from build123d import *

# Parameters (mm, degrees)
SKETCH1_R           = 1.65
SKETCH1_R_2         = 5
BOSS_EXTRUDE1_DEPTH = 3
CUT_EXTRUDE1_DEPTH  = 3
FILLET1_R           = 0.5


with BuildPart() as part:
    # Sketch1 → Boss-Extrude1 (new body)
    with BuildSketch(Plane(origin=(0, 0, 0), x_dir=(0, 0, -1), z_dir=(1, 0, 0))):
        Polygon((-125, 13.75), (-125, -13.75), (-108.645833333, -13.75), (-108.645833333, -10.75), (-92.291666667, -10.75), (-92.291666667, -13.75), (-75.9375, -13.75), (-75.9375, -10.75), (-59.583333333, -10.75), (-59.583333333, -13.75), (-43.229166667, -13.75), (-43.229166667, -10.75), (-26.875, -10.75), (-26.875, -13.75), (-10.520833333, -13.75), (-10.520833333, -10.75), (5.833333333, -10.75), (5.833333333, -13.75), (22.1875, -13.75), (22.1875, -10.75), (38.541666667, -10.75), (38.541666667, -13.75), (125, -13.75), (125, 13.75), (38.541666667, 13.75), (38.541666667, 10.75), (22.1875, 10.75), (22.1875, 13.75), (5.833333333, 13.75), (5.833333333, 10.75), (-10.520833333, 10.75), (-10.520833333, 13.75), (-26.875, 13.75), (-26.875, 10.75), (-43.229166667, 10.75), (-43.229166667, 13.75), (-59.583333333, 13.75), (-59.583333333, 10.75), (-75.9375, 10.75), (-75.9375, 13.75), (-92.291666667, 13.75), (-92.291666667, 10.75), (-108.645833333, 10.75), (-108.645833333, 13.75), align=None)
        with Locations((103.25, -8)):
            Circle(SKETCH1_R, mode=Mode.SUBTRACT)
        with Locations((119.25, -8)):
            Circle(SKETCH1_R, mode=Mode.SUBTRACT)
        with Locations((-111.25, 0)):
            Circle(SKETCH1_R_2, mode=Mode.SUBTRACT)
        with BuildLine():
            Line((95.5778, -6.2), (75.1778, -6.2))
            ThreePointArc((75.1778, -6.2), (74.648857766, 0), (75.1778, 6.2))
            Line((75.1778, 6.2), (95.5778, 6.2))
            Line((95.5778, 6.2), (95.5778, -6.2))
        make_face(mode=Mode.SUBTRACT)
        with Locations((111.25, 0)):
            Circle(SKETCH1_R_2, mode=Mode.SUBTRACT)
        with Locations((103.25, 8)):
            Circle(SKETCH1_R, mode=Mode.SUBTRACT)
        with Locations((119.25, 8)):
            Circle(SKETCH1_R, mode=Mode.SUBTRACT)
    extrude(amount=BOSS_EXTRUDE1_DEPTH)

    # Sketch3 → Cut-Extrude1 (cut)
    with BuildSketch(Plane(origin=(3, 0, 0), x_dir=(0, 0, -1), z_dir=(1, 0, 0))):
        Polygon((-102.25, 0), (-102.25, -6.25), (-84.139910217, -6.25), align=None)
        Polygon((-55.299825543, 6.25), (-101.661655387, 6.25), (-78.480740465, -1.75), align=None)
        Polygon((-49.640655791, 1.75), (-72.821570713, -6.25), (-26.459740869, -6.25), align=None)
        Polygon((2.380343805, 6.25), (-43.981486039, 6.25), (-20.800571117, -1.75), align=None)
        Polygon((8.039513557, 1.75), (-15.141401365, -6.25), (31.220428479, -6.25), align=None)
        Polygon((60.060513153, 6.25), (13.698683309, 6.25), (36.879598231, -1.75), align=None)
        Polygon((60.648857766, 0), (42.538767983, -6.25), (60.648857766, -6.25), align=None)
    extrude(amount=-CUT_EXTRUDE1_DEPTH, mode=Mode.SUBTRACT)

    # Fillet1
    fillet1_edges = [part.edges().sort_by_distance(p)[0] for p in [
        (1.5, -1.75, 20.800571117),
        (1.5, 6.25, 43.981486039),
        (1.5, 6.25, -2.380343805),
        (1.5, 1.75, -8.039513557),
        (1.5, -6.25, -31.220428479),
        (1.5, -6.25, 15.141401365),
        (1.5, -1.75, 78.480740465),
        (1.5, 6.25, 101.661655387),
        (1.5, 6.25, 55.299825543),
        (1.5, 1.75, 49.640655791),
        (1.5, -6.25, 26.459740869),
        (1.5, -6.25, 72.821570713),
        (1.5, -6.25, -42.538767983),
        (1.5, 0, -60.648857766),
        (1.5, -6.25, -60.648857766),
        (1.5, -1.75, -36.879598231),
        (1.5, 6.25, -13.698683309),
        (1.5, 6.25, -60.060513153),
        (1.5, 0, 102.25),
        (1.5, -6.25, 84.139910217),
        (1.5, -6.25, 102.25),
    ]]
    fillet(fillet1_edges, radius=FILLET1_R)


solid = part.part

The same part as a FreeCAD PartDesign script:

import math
import FreeCAD as App
import Part
import Sketcher


def edges_at(feature, points):
    """Names of the edges that pass closest to the given points."""
    edges = feature.Shape.Edges
    near = lambda p: min(range(len(edges)), key=lambda i: edges[i].distToShape(Part.Vertex(*p))[0])
    return sorted({f"Edge{near(p) + 1}" for p in points})

doc = App.newDocument("Part")
body = doc.addObject("PartDesign::Body", "Body")

sketch1 = body.newObject("Sketcher::SketchObject", "Sketch")
sketch1.AttachmentSupport = (doc.getObject("YZ_Plane"), [""])
sketch1.MapMode = "FlatFace"
sketch1.addGeometry([
    Part.LineSegment(App.Vector(13.75, 125, 0), App.Vector(-13.75, 125, 0)),
    Part.LineSegment(App.Vector(-13.75, 125, 0), App.Vector(-13.75, 108.645833, 0)),
    Part.LineSegment(App.Vector(-13.75, 108.645833, 0), App.Vector(-10.75, 108.645833, 0)),
    Part.LineSegment(App.Vector(-10.75, 108.645833, 0), App.Vector(-10.75, 92.291667, 0)),
    Part.LineSegment(App.Vector(-10.75, 92.291667, 0), App.Vector(-13.75, 92.291667, 0)),
    Part.LineSegment(App.Vector(-13.75, 92.291667, 0), App.Vector(-13.75, 75.9375, 0)),
    Part.LineSegment(App.Vector(-13.75, 75.9375, 0), App.Vector(-10.75, 75.9375, 0)),
    Part.LineSegment(App.Vector(-10.75, 75.9375, 0), App.Vector(-10.75, 59.583333, 0)),
    Part.LineSegment(App.Vector(-10.75, 59.583333, 0), App.Vector(-13.75, 59.583333, 0)),
    Part.LineSegment(App.Vector(-13.75, 59.583333, 0), App.Vector(-13.75, 43.229167, 0)),
    Part.LineSegment(App.Vector(-13.75, 43.229167, 0), App.Vector(-10.75, 43.229167, 0)),
    Part.LineSegment(App.Vector(-10.75, 43.229167, 0), App.Vector(-10.75, 26.875, 0)),
    Part.LineSegment(App.Vector(-10.75, 26.875, 0), App.Vector(-13.75, 26.875, 0)),
    Part.LineSegment(App.Vector(-13.75, 26.875, 0), App.Vector(-13.75, 10.520833, 0)),
    Part.LineSegment(App.Vector(-13.75, 10.520833, 0), App.Vector(-10.75, 10.520833, 0)),
    Part.LineSegment(App.Vector(-10.75, 10.520833, 0), App.Vector(-10.75, -5.833333, 0)),
    Part.LineSegment(App.Vector(-10.75, -5.833333, 0), App.Vector(-13.75, -5.833333, 0)),
    Part.LineSegment(App.Vector(-13.75, -5.833333, 0), App.Vector(-13.75, -22.1875, 0)),
    Part.LineSegment(App.Vector(-13.75, -22.1875, 0), App.Vector(-10.75, -22.1875, 0)),
    Part.LineSegment(App.Vector(-10.75, -22.1875, 0), App.Vector(-10.75, -38.541667, 0)),
    Part.LineSegment(App.Vector(-10.75, -38.541667, 0), App.Vector(-13.75, -38.541667, 0)),
    Part.LineSegment(App.Vector(-13.75, -38.541667, 0), App.Vector(-13.75, -125, 0)),
    Part.LineSegment(App.Vector(-13.75, -125, 0), App.Vector(13.75, -125, 0)),
    Part.LineSegment(App.Vector(13.75, -125, 0), App.Vector(13.75, -38.541667, 0)),
    Part.LineSegment(App.Vector(13.75, -38.541667, 0), App.Vector(10.75, -38.541667, 0)),
    Part.LineSegment(App.Vector(10.75, -38.541667, 0), App.Vector(10.75, -22.1875, 0)),
    Part.LineSegment(App.Vector(10.75, -22.1875, 0), App.Vector(13.75, -22.1875, 0)),
    Part.LineSegment(App.Vector(13.75, -22.1875, 0), App.Vector(13.75, -5.833333, 0)),
    Part.LineSegment(App.Vector(13.75, -5.833333, 0), App.Vector(10.75, -5.833333, 0)),
    Part.LineSegment(App.Vector(10.75, -5.833333, 0), App.Vector(10.75, 10.520833, 0)),
    Part.LineSegment(App.Vector(10.75, 10.520833, 0), App.Vector(13.75, 10.520833, 0)),
    Part.LineSegment(App.Vector(13.75, 10.520833, 0), App.Vector(13.75, 26.875, 0)),
    Part.LineSegment(App.Vector(13.75, 26.875, 0), App.Vector(10.75, 26.875, 0)),
    Part.LineSegment(App.Vector(10.75, 26.875, 0), App.Vector(10.75, 43.229167, 0)),
    Part.LineSegment(App.Vector(10.75, 43.229167, 0), App.Vector(13.75, 43.229167, 0)),
    Part.LineSegment(App.Vector(13.75, 43.229167, 0), App.Vector(13.75, 59.583333, 0)),
    Part.LineSegment(App.Vector(13.75, 59.583333, 0), App.Vector(10.75, 59.583333, 0)),
    Part.LineSegment(App.Vector(10.75, 59.583333, 0), App.Vector(10.75, 75.9375, 0)),
    Part.LineSegment(App.Vector(10.75, 75.9375, 0), App.Vector(13.75, 75.9375, 0)),
    Part.LineSegment(App.Vector(13.75, 75.9375, 0), App.Vector(13.75, 92.291667, 0)),
    Part.LineSegment(App.Vector(13.75, 92.291667, 0), App.Vector(10.75, 92.291667, 0)),
    Part.LineSegment(App.Vector(10.75, 92.291667, 0), App.Vector(10.75, 108.645833, 0)),
    Part.LineSegment(App.Vector(10.75, 108.645833, 0), App.Vector(13.75, 108.645833, 0)),
    Part.LineSegment(App.Vector(13.75, 108.645833, 0), App.Vector(13.75, 125, 0)),
    Part.Circle(App.Vector(-8, -103.25, 0), App.Vector(0, 0, 1), 1.65),
    Part.Circle(App.Vector(-8, -119.25, 0), App.Vector(0, 0, 1), 1.65),
    Part.Circle(App.Vector(0, 111.25, 0), App.Vector(0, 0, 1), 5),
    Part.LineSegment(App.Vector(6.2, -95.5778, 0), App.Vector(-6.2, -95.5778, 0)),
    Part.LineSegment(App.Vector(-6.2, -95.5778, 0), App.Vector(-6.2, -75.1778, 0)),
    Part.ArcOfCircle(Part.Circle(App.Vector(0, -111.25, 0), App.Vector(0, 0, 1), 36.601142), math.radians(80.247435), math.radians(99.752565)),
    Part.LineSegment(App.Vector(6.2, -75.1778, 0), App.Vector(6.2, -95.5778, 0)),
    Part.Circle(App.Vector(0, -111.25, 0), App.Vector(0, 0, 1), 5),
    Part.Circle(App.Vector(8, -103.25, 0), App.Vector(0, 0, 1), 1.65),
    Part.Circle(App.Vector(8, -119.25, 0), App.Vector(0, 0, 1), 1.65),
], False)
sketch1.addConstraint([
    Sketcher.Constraint("Coincident", 0, 2, 1, 1),
    Sketcher.Constraint("Coincident", 1, 2, 2, 1),
    Sketcher.Constraint("Coincident", 2, 2, 3, 1),
    Sketcher.Constraint("Coincident", 3, 2, 4, 1),
    Sketcher.Constraint("Coincident", 4, 2, 5, 1),
    Sketcher.Constraint("Coincident", 5, 2, 6, 1),
    Sketcher.Constraint("Coincident", 6, 2, 7, 1),
    Sketcher.Constraint("Coincident", 7, 2, 8, 1),
    Sketcher.Constraint("Coincident", 8, 2, 9, 1),
    Sketcher.Constraint("Coincident", 9, 2, 10, 1),
    Sketcher.Constraint("Coincident", 10, 2, 11, 1),
    Sketcher.Constraint("Coincident", 11, 2, 12, 1),
    Sketcher.Constraint("Coincident", 12, 2, 13, 1),
    Sketcher.Constraint("Coincident", 13, 2, 14, 1),
    Sketcher.Constraint("Coincident", 14, 2, 15, 1),
    Sketcher.Constraint("Coincident", 15, 2, 16, 1),
    Sketcher.Constraint("Coincident", 16, 2, 17, 1),
    Sketcher.Constraint("Coincident", 17, 2, 18, 1),
    Sketcher.Constraint("Coincident", 18, 2, 19, 1),
    Sketcher.Constraint("Coincident", 19, 2, 20, 1),
    Sketcher.Constraint("Coincident", 20, 2, 21, 1),
    Sketcher.Constraint("Coincident", 21, 2, 22, 1),
    Sketcher.Constraint("Coincident", 22, 2, 23, 1),
    Sketcher.Constraint("Coincident", 23, 2, 24, 1),
    Sketcher.Constraint("Coincident", 24, 2, 25, 1),
    Sketcher.Constraint("Coincident", 25, 2, 26, 1),
    Sketcher.Constraint("Coincident", 26, 2, 27, 1),
    Sketcher.Constraint("Coincident", 27, 2, 28, 1),
    Sketcher.Constraint("Coincident", 28, 2, 29, 1),
    Sketcher.Constraint("Coincident", 29, 2, 30, 1),
    Sketcher.Constraint("Coincident", 30, 2, 31, 1),
    Sketcher.Constraint("Coincident", 31, 2, 32, 1),
    Sketcher.Constraint("Coincident", 32, 2, 33, 1),
    Sketcher.Constraint("Coincident", 33, 2, 34, 1),
    Sketcher.Constraint("Coincident", 34, 2, 35, 1),
    Sketcher.Constraint("Coincident", 35, 2, 36, 1),
    Sketcher.Constraint("Coincident", 36, 2, 37, 1),
    Sketcher.Constraint("Coincident", 37, 2, 38, 1),
    Sketcher.Constraint("Coincident", 38, 2, 39, 1),
    Sketcher.Constraint("Coincident", 39, 2, 40, 1),
    Sketcher.Constraint("Coincident", 40, 2, 41, 1),
    Sketcher.Constraint("Coincident", 41, 2, 42, 1),
    Sketcher.Constraint("Coincident", 42, 2, 43, 1),
    Sketcher.Constraint("Coincident", 43, 2, 0, 1),
    Sketcher.Constraint("Coincident", 47, 2, 48, 1),
    Sketcher.Constraint("Coincident", 48, 2, 49, 2),
    Sketcher.Constraint("Coincident", 49, 1, 50, 1),
    Sketcher.Constraint("Coincident", 50, 2, 47, 1),
    Sketcher.Constraint("Horizontal", 0),
    Sketcher.Constraint("Vertical", 1),
    Sketcher.Constraint("Horizontal", 2),
    Sketcher.Constraint("Vertical", 3),
    Sketcher.Constraint("Horizontal", 4),
    Sketcher.Constraint("Vertical", 5),
    Sketcher.Constraint("Horizontal", 6),
    Sketcher.Constraint("Vertical", 7),
    Sketcher.Constraint("Horizontal", 8),
    Sketcher.Constraint("Vertical", 9),
    Sketcher.Constraint("Horizontal", 10),
    Sketcher.Constraint("Vertical", 11),
    Sketcher.Constraint("Horizontal", 12),
    Sketcher.Constraint("Vertical", 13),
    Sketcher.Constraint("Horizontal", 14),
    Sketcher.Constraint("Vertical", 15),
    Sketcher.Constraint("Horizontal", 16),
    Sketcher.Constraint("Vertical", 17),
    Sketcher.Constraint("Horizontal", 18),
    Sketcher.Constraint("Vertical", 19),
    Sketcher.Constraint("Horizontal", 20),
    Sketcher.Constraint("Vertical", 21),
    Sketcher.Constraint("Horizontal", 22),
    Sketcher.Constraint("Vertical", 23),
    Sketcher.Constraint("Horizontal", 24),
    Sketcher.Constraint("Vertical", 25),
    Sketcher.Constraint("Horizontal", 26),
    Sketcher.Constraint("Vertical", 27),
    Sketcher.Constraint("Horizontal", 28),
    Sketcher.Constraint("Vertical", 29),
    Sketcher.Constraint("Horizontal", 30),
    Sketcher.Constraint("Vertical", 31),
    Sketcher.Constraint("Horizontal", 32),
    Sketcher.Constraint("Vertical", 33),
    Sketcher.Constraint("Horizontal", 34),
    Sketcher.Constraint("Vertical", 35),
    Sketcher.Constraint("Horizontal", 36),
    Sketcher.Constraint("Vertical", 37),
    Sketcher.Constraint("Horizontal", 38),
    Sketcher.Constraint("Vertical", 39),
    Sketcher.Constraint("Horizontal", 40),
    Sketcher.Constraint("Vertical", 41),
    Sketcher.Constraint("Horizontal", 42),
    Sketcher.Constraint("Vertical", 43),
    Sketcher.Constraint("Horizontal", 47),
    Sketcher.Constraint("Vertical", 48),
    Sketcher.Constraint("Vertical", 50),
    Sketcher.Constraint("Coincident", 51, 3, 49, 3),
    Sketcher.Constraint("Equal", 44, 45),
    Sketcher.Constraint("Equal", 46, 51),
    Sketcher.Constraint("Equal", 45, 52),
    Sketcher.Constraint("Equal", 52, 53),
    Sketcher.Constraint("Symmetric", 46, 3, 49, 3, -1, 1),
    Sketcher.Constraint("Symmetric", 0, 2, 22, 2, -1, 1),
    Sketcher.Constraint("Symmetric", 44, 3, 52, 3, -2),
    Sketcher.Constraint("Symmetric", 45, 3, 53, 3, -2),
    Sketcher.Constraint("Symmetric", 20, 2, 23, 2, -2),
    Sketcher.Constraint("Symmetric", 18, 2, 25, 2, -2),
    Sketcher.Constraint("Symmetric", 16, 2, 27, 2, -2),
    Sketcher.Constraint("Symmetric", 14, 2, 29, 2, -2),
    Sketcher.Constraint("Symmetric", 12, 2, 31, 2, -2),
    Sketcher.Constraint("Symmetric", 10, 2, 33, 2, -2),
    Sketcher.Constraint("Symmetric", 8, 2, 35, 2, -2),
    Sketcher.Constraint("Symmetric", 6, 2, 37, 2, -2),
    Sketcher.Constraint("Symmetric", 4, 2, 39, 2, -2),
    Sketcher.Constraint("Symmetric", 2, 2, 41, 2, -2),
    Sketcher.Constraint("Symmetric", 48, 2, 49, 1, -2),
    Sketcher.Constraint("Vertical", 44, 3, 45, 3),
    Sketcher.Constraint("Vertical", 1, 2, 4, 2),
    Sketcher.Constraint("Vertical", 3, 2, 6, 2),
    Sketcher.Constraint("Vertical", 5, 2, 8, 2),
    Sketcher.Constraint("Vertical", 7, 2, 10, 2),
    Sketcher.Constraint("Vertical", 9, 2, 12, 2),
    Sketcher.Constraint("Vertical", 11, 2, 14, 2),
    Sketcher.Constraint("Vertical", 13, 2, 16, 2),
    Sketcher.Constraint("Vertical", 15, 2, 18, 2),
    Sketcher.Constraint("Vertical", 39, 2, 42, 2),
    Sketcher.Constraint("Equal", 1, 3),
    Sketcher.Constraint("Equal", 3, 5),
    Sketcher.Constraint("Equal", 5, 7),
    Sketcher.Constraint("Equal", 7, 9),
    Sketcher.Constraint("Equal", 9, 11),
    Sketcher.Constraint("Equal", 11, 13),
    Sketcher.Constraint("Equal", 13, 15),
    Sketcher.Constraint("Equal", 15, 17),
    Sketcher.Constraint("Equal", 17, 19),
    Sketcher.Constraint("Diameter", 46, 10.0),
    Sketcher.Constraint("Diameter", 44, 3.3),
    Sketcher.Constraint("DistanceX", 2, 1, 2, 2, 3.0),
    Sketcher.Constraint("DistanceX", 0, 2, 0, 1, 27.5),
    Sketcher.Constraint("DistanceX", 47, 2, 47, 1, 12.4),
    Sketcher.Constraint("DistanceY", 48, 1, 48, 2, 20.4),
    Sketcher.Constraint("DistanceX", 44, 3, -1, 1, 8.0),
    Sketcher.Constraint("DistanceY", -1, 1, 0, 2, 125.0),
    Sketcher.Constraint("DistanceY", 45, 3, 44, 3, 16.0),
    Sketcher.Constraint("DistanceY", 45, 3, 49, 3, 8.0),
    Sketcher.Constraint("DistanceY", 44, 3, 46, 3, 214.5),
    Sketcher.Constraint("DistanceY", -1, 1, 11, 2, 26.875),
    Sketcher.Constraint("Radius", 49, 36.601142),
])
pad1 = body.newObject("PartDesign::Pad", "Pad")
pad1.Profile = sketch1
pad1.Length = 3

sketch2 = body.newObject("Sketcher::SketchObject", "Sketch001")
sketch2.AttachmentSupport = (doc.getObject("YZ_Plane"), [""])
sketch2.MapMode = "FlatFace"
sketch2.AttachmentOffset = App.Placement(App.Vector(0, 0, 3), App.Rotation())
sketch2.addGeometry([
    Part.LineSegment(App.Vector(0, 102.25, 0), App.Vector(-6.25, 102.25, 0)),
    Part.LineSegment(App.Vector(-6.25, 102.25, 0), App.Vector(-6.25, 84.13991, 0)),
    Part.LineSegment(App.Vector(-6.25, 84.13991, 0), App.Vector(0, 102.25, 0)),
    Part.LineSegment(App.Vector(6.25, 55.299826, 0), App.Vector(6.25, 101.661655, 0)),
    Part.LineSegment(App.Vector(6.25, 101.661655, 0), App.Vector(-1.75, 78.48074, 0)),
    Part.LineSegment(App.Vector(-1.75, 78.48074, 0), App.Vector(6.25, 55.299826, 0)),
    Part.LineSegment(App.Vector(1.75, 49.640656, 0), App.Vector(-6.25, 72.821571, 0)),
    Part.LineSegment(App.Vector(-6.25, 72.821571, 0), App.Vector(-6.25, 26.459741, 0)),
    Part.LineSegment(App.Vector(-6.25, 26.459741, 0), App.Vector(1.75, 49.640656, 0)),
    Part.LineSegment(App.Vector(6.25, -2.380344, 0), App.Vector(6.25, 43.981486, 0)),
    Part.LineSegment(App.Vector(6.25, 43.981486, 0), App.Vector(-1.75, 20.800571, 0)),
    Part.LineSegment(App.Vector(-1.75, 20.800571, 0), App.Vector(6.25, -2.380344, 0)),
    Part.LineSegment(App.Vector(1.75, -8.039514, 0), App.Vector(-6.25, 15.141401, 0)),
    Part.LineSegment(App.Vector(-6.25, 15.141401, 0), App.Vector(-6.25, -31.220428, 0)),
    Part.LineSegment(App.Vector(-6.25, -31.220428, 0), App.Vector(1.75, -8.039514, 0)),
    Part.LineSegment(App.Vector(6.25, -60.060513, 0), App.Vector(6.25, -13.698683, 0)),
    Part.LineSegment(App.Vector(6.25, -13.698683, 0), App.Vector(-1.75, -36.879598, 0)),
    Part.LineSegment(App.Vector(-1.75, -36.879598, 0), App.Vector(6.25, -60.060513, 0)),
    Part.LineSegment(App.Vector(0, -60.648858, 0), App.Vector(-6.25, -42.538768, 0)),
    Part.LineSegment(App.Vector(-6.25, -42.538768, 0), App.Vector(-6.25, -60.648858, 0)),
    Part.LineSegment(App.Vector(-6.25, -60.648858, 0), App.Vector(0, -60.648858, 0)),
], False)
sketch2.addConstraint([
    Sketcher.Constraint("Coincident", 0, 2, 1, 1),
    Sketcher.Constraint("Coincident", 1, 2, 2, 1),
    Sketcher.Constraint("Coincident", 2, 2, 0, 1),
    Sketcher.Constraint("Coincident", 3, 2, 4, 1),
    Sketcher.Constraint("Coincident", 4, 2, 5, 1),
    Sketcher.Constraint("Coincident", 5, 2, 3, 1),
    Sketcher.Constraint("Coincident", 6, 2, 7, 1),
    Sketcher.Constraint("Coincident", 7, 2, 8, 1),
    Sketcher.Constraint("Coincident", 8, 2, 6, 1),
    Sketcher.Constraint("Coincident", 9, 2, 10, 1),
    Sketcher.Constraint("Coincident", 10, 2, 11, 1),
    Sketcher.Constraint("Coincident", 11, 2, 9, 1),
    Sketcher.Constraint("Coincident", 12, 2, 13, 1),
    Sketcher.Constraint("Coincident", 13, 2, 14, 1),
    Sketcher.Constraint("Coincident", 14, 2, 12, 1),
    Sketcher.Constraint("Coincident", 15, 2, 16, 1),
    Sketcher.Constraint("Coincident", 16, 2, 17, 1),
    Sketcher.Constraint("Coincident", 17, 2, 15, 1),
    Sketcher.Constraint("Coincident", 18, 2, 19, 1),
    Sketcher.Constraint("Coincident", 19, 2, 20, 1),
    Sketcher.Constraint("Coincident", 20, 2, 18, 1),
    Sketcher.Constraint("Horizontal", 0),
    Sketcher.Constraint("Vertical", 1),
    Sketcher.Constraint("Vertical", 3),
    Sketcher.Constraint("Vertical", 7),
    Sketcher.Constraint("Vertical", 9),
    Sketcher.Constraint("Vertical", 13),
    Sketcher.Constraint("Vertical", 15),
    Sketcher.Constraint("Vertical", 19),
    Sketcher.Constraint("Horizontal", 20),
    Sketcher.Constraint("PointOnObject", 2, 2, -2),
    Sketcher.Constraint("PointOnObject", 20, 2, -2),
    Sketcher.Constraint("Parallel", 2, 4),
    Sketcher.Constraint("Parallel", 5, 6),
    Sketcher.Constraint("Parallel", 4, 8),
    Sketcher.Constraint("Parallel", 8, 10),
    Sketcher.Constraint("Parallel", 6, 11),
    Sketcher.Constraint("Parallel", 11, 12),
    Sketcher.Constraint("Parallel", 10, 14),
    Sketcher.Constraint("Parallel", 14, 16),
    Sketcher.Constraint("Parallel", 12, 17),
    Sketcher.Constraint("Parallel", 17, 18),
    Sketcher.Constraint("Vertical", 1, 2, 6, 2),
    Sketcher.Constraint("Vertical", 5, 2, 9, 2),
    Sketcher.Constraint("Vertical", 4, 2, 10, 2),
    Sketcher.Constraint("Vertical", 7, 2, 12, 2),
    Sketcher.Constraint("Vertical", 8, 2, 14, 2),
    Sketcher.Constraint("Vertical", 11, 2, 15, 2),
    Sketcher.Constraint("Vertical", 10, 2, 16, 2),
    Sketcher.Constraint("Vertical", 13, 2, 18, 2),
    Sketcher.Constraint("Equal", 3, 7),
    Sketcher.Constraint("Equal", 1, 19),
    Sketcher.Constraint("DistanceX", 4, 2, 3, 2, 8.0),
    Sketcher.Constraint("DistanceX", 0, 2, 0, 1, 6.25),
    Sketcher.Constraint("DistanceX", 0, 2, 3, 2, 12.5),
    Sketcher.Constraint("DistanceY", -1, 1, 0, 2, 102.25),
    Sketcher.Constraint("DistanceY", 7, 2, 4, 2, 52.021),
    Sketcher.Constraint("DistanceY", 10, 2, 6, 2, 52.021),
    Sketcher.Constraint("DistanceY", 13, 2, 10, 2, 52.021),
    Sketcher.Constraint("DistanceY", 16, 2, 12, 2, 52.021),
    Sketcher.Constraint("DistanceY", 1, 2, 1, 1, 18.11009),
    Sketcher.Constraint("DistanceY", -1, 1, 12, 2, 15.141401),
    Sketcher.Constraint("DistanceY", 18, 2, 16, 2, 5.65917),
])
pocket1 = body.newObject("PartDesign::Pocket", "Pocket")
pocket1.Profile = sketch2
pocket1.Length = 3
doc.recompute()

fillet = body.newObject("PartDesign::Fillet", "Fillet")
fillet.Base = (pocket1, edges_at(pocket1, [
    (1.5, -1.75, 20.801),
    (1.5, 6.25, 43.981),
    (1.5, 6.25, -2.38),
    (1.5, 1.75, -8.04),
    (1.5, -6.25, -31.22),
    (1.5, -6.25, 15.141),
    (1.5, -1.75, 78.481),
    (1.5, 6.25, 101.662),
    (1.5, 6.25, 55.3),
    (1.5, 1.75, 49.641),
    (1.5, -6.25, 26.46),
    (1.5, -6.25, 72.822),
    (1.5, -6.25, -42.539),
    (1.5, 0, -60.649),
    (1.5, -6.25, -60.649),
    (1.5, -1.75, -36.88),
    (1.5, 6.25, -13.699),
    (1.5, 6.25, -60.061),
    (1.5, 0, 102.25),
    (1.5, -6.25, 84.14),
    (1.5, -6.25, 102.25),
]))
fillet.Radius = 0.5

doc.recompute()
